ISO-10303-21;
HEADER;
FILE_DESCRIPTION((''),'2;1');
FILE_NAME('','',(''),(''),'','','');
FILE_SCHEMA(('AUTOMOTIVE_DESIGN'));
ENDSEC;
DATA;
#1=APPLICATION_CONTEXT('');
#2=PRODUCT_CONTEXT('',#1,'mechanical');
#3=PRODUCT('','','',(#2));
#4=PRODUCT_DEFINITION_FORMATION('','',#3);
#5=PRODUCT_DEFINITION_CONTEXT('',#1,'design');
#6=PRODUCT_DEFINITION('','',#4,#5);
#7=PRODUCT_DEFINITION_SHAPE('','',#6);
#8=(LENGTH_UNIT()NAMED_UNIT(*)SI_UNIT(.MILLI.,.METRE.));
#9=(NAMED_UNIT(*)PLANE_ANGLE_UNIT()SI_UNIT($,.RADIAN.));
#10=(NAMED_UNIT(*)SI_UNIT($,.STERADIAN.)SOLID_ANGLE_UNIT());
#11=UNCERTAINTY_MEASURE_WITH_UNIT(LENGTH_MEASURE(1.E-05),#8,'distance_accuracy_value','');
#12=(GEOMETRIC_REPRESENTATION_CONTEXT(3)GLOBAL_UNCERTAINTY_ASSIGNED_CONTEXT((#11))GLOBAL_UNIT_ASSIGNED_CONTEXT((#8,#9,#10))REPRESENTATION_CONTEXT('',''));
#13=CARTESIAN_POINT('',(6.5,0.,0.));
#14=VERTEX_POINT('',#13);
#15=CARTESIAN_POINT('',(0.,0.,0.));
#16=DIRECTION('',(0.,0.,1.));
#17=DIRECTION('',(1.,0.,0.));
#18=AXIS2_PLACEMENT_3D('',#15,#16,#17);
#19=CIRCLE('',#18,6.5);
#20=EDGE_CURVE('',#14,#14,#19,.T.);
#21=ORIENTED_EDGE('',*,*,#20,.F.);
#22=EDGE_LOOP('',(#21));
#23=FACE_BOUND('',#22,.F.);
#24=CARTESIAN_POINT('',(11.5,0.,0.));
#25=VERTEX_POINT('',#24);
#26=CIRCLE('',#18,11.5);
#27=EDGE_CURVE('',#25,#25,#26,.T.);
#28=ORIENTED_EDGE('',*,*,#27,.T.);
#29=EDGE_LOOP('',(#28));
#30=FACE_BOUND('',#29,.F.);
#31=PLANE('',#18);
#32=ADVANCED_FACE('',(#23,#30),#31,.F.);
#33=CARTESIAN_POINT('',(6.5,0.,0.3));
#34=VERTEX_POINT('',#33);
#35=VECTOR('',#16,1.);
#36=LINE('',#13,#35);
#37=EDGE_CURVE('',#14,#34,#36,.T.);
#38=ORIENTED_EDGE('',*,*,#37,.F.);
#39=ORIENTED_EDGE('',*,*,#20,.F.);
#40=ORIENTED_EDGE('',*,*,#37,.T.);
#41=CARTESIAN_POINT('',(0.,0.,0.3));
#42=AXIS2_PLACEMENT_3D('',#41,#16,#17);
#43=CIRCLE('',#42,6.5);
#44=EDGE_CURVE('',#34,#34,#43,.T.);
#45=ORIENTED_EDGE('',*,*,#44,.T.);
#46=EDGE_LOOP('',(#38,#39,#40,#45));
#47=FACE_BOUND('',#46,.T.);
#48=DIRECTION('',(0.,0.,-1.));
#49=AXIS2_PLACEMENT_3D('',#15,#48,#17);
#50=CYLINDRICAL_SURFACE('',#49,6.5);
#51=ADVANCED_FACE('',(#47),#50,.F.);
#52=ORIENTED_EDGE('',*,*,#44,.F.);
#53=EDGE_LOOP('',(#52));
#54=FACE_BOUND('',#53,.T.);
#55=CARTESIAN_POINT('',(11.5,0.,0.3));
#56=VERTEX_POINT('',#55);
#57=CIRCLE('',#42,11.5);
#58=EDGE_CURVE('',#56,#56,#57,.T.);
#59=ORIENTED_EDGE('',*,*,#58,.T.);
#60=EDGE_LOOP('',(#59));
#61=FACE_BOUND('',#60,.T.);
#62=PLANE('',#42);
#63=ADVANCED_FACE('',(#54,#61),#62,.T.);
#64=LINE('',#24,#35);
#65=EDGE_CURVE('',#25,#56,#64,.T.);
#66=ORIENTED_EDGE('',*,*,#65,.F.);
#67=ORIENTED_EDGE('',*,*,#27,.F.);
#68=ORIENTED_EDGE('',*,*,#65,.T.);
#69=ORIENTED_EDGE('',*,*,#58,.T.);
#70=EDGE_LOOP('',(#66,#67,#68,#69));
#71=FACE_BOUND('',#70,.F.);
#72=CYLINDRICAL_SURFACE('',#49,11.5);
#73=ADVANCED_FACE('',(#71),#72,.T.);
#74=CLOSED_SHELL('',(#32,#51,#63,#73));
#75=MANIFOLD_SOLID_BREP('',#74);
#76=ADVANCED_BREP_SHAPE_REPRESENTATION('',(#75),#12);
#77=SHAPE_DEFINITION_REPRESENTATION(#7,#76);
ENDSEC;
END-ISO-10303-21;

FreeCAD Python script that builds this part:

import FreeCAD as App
import Part
import Sketcher
from FreeCAD import Vector

doc = App.newDocument("Part")
body = doc.addObject("PartDesign::Body", "Body")

# Sketch on XY plane
sketch1 = body.newObject("Sketcher::SketchObject", "Sketch")
sketch1.AttachmentSupport = (doc.getObject("XY_Plane"), [""])
sketch1.MapMode = "FlatFace"
sketch1.addGeometry([
    Part.Circle(Vector(0, 0, 0), Vector(0, 0, 1), 12),
    Part.Circle(Vector(0, 0, 0), Vector(0, 0, 1), 6),
], False)
sketch1.addConstraint([
    Sketcher.Constraint("Coincident", 0, 3, -1, 1),
    Sketcher.Constraint("Coincident", 1, 3, -1, 1),
    Sketcher.Constraint("Diameter", 0, 23.0),
    Sketcher.Constraint("Diameter", 1, 13.0),
])
pad1 = body.newObject("PartDesign::Pad", "Pad")
pad1.Profile = sketch1
pad1.Length = 0.3

doc.recompute()
